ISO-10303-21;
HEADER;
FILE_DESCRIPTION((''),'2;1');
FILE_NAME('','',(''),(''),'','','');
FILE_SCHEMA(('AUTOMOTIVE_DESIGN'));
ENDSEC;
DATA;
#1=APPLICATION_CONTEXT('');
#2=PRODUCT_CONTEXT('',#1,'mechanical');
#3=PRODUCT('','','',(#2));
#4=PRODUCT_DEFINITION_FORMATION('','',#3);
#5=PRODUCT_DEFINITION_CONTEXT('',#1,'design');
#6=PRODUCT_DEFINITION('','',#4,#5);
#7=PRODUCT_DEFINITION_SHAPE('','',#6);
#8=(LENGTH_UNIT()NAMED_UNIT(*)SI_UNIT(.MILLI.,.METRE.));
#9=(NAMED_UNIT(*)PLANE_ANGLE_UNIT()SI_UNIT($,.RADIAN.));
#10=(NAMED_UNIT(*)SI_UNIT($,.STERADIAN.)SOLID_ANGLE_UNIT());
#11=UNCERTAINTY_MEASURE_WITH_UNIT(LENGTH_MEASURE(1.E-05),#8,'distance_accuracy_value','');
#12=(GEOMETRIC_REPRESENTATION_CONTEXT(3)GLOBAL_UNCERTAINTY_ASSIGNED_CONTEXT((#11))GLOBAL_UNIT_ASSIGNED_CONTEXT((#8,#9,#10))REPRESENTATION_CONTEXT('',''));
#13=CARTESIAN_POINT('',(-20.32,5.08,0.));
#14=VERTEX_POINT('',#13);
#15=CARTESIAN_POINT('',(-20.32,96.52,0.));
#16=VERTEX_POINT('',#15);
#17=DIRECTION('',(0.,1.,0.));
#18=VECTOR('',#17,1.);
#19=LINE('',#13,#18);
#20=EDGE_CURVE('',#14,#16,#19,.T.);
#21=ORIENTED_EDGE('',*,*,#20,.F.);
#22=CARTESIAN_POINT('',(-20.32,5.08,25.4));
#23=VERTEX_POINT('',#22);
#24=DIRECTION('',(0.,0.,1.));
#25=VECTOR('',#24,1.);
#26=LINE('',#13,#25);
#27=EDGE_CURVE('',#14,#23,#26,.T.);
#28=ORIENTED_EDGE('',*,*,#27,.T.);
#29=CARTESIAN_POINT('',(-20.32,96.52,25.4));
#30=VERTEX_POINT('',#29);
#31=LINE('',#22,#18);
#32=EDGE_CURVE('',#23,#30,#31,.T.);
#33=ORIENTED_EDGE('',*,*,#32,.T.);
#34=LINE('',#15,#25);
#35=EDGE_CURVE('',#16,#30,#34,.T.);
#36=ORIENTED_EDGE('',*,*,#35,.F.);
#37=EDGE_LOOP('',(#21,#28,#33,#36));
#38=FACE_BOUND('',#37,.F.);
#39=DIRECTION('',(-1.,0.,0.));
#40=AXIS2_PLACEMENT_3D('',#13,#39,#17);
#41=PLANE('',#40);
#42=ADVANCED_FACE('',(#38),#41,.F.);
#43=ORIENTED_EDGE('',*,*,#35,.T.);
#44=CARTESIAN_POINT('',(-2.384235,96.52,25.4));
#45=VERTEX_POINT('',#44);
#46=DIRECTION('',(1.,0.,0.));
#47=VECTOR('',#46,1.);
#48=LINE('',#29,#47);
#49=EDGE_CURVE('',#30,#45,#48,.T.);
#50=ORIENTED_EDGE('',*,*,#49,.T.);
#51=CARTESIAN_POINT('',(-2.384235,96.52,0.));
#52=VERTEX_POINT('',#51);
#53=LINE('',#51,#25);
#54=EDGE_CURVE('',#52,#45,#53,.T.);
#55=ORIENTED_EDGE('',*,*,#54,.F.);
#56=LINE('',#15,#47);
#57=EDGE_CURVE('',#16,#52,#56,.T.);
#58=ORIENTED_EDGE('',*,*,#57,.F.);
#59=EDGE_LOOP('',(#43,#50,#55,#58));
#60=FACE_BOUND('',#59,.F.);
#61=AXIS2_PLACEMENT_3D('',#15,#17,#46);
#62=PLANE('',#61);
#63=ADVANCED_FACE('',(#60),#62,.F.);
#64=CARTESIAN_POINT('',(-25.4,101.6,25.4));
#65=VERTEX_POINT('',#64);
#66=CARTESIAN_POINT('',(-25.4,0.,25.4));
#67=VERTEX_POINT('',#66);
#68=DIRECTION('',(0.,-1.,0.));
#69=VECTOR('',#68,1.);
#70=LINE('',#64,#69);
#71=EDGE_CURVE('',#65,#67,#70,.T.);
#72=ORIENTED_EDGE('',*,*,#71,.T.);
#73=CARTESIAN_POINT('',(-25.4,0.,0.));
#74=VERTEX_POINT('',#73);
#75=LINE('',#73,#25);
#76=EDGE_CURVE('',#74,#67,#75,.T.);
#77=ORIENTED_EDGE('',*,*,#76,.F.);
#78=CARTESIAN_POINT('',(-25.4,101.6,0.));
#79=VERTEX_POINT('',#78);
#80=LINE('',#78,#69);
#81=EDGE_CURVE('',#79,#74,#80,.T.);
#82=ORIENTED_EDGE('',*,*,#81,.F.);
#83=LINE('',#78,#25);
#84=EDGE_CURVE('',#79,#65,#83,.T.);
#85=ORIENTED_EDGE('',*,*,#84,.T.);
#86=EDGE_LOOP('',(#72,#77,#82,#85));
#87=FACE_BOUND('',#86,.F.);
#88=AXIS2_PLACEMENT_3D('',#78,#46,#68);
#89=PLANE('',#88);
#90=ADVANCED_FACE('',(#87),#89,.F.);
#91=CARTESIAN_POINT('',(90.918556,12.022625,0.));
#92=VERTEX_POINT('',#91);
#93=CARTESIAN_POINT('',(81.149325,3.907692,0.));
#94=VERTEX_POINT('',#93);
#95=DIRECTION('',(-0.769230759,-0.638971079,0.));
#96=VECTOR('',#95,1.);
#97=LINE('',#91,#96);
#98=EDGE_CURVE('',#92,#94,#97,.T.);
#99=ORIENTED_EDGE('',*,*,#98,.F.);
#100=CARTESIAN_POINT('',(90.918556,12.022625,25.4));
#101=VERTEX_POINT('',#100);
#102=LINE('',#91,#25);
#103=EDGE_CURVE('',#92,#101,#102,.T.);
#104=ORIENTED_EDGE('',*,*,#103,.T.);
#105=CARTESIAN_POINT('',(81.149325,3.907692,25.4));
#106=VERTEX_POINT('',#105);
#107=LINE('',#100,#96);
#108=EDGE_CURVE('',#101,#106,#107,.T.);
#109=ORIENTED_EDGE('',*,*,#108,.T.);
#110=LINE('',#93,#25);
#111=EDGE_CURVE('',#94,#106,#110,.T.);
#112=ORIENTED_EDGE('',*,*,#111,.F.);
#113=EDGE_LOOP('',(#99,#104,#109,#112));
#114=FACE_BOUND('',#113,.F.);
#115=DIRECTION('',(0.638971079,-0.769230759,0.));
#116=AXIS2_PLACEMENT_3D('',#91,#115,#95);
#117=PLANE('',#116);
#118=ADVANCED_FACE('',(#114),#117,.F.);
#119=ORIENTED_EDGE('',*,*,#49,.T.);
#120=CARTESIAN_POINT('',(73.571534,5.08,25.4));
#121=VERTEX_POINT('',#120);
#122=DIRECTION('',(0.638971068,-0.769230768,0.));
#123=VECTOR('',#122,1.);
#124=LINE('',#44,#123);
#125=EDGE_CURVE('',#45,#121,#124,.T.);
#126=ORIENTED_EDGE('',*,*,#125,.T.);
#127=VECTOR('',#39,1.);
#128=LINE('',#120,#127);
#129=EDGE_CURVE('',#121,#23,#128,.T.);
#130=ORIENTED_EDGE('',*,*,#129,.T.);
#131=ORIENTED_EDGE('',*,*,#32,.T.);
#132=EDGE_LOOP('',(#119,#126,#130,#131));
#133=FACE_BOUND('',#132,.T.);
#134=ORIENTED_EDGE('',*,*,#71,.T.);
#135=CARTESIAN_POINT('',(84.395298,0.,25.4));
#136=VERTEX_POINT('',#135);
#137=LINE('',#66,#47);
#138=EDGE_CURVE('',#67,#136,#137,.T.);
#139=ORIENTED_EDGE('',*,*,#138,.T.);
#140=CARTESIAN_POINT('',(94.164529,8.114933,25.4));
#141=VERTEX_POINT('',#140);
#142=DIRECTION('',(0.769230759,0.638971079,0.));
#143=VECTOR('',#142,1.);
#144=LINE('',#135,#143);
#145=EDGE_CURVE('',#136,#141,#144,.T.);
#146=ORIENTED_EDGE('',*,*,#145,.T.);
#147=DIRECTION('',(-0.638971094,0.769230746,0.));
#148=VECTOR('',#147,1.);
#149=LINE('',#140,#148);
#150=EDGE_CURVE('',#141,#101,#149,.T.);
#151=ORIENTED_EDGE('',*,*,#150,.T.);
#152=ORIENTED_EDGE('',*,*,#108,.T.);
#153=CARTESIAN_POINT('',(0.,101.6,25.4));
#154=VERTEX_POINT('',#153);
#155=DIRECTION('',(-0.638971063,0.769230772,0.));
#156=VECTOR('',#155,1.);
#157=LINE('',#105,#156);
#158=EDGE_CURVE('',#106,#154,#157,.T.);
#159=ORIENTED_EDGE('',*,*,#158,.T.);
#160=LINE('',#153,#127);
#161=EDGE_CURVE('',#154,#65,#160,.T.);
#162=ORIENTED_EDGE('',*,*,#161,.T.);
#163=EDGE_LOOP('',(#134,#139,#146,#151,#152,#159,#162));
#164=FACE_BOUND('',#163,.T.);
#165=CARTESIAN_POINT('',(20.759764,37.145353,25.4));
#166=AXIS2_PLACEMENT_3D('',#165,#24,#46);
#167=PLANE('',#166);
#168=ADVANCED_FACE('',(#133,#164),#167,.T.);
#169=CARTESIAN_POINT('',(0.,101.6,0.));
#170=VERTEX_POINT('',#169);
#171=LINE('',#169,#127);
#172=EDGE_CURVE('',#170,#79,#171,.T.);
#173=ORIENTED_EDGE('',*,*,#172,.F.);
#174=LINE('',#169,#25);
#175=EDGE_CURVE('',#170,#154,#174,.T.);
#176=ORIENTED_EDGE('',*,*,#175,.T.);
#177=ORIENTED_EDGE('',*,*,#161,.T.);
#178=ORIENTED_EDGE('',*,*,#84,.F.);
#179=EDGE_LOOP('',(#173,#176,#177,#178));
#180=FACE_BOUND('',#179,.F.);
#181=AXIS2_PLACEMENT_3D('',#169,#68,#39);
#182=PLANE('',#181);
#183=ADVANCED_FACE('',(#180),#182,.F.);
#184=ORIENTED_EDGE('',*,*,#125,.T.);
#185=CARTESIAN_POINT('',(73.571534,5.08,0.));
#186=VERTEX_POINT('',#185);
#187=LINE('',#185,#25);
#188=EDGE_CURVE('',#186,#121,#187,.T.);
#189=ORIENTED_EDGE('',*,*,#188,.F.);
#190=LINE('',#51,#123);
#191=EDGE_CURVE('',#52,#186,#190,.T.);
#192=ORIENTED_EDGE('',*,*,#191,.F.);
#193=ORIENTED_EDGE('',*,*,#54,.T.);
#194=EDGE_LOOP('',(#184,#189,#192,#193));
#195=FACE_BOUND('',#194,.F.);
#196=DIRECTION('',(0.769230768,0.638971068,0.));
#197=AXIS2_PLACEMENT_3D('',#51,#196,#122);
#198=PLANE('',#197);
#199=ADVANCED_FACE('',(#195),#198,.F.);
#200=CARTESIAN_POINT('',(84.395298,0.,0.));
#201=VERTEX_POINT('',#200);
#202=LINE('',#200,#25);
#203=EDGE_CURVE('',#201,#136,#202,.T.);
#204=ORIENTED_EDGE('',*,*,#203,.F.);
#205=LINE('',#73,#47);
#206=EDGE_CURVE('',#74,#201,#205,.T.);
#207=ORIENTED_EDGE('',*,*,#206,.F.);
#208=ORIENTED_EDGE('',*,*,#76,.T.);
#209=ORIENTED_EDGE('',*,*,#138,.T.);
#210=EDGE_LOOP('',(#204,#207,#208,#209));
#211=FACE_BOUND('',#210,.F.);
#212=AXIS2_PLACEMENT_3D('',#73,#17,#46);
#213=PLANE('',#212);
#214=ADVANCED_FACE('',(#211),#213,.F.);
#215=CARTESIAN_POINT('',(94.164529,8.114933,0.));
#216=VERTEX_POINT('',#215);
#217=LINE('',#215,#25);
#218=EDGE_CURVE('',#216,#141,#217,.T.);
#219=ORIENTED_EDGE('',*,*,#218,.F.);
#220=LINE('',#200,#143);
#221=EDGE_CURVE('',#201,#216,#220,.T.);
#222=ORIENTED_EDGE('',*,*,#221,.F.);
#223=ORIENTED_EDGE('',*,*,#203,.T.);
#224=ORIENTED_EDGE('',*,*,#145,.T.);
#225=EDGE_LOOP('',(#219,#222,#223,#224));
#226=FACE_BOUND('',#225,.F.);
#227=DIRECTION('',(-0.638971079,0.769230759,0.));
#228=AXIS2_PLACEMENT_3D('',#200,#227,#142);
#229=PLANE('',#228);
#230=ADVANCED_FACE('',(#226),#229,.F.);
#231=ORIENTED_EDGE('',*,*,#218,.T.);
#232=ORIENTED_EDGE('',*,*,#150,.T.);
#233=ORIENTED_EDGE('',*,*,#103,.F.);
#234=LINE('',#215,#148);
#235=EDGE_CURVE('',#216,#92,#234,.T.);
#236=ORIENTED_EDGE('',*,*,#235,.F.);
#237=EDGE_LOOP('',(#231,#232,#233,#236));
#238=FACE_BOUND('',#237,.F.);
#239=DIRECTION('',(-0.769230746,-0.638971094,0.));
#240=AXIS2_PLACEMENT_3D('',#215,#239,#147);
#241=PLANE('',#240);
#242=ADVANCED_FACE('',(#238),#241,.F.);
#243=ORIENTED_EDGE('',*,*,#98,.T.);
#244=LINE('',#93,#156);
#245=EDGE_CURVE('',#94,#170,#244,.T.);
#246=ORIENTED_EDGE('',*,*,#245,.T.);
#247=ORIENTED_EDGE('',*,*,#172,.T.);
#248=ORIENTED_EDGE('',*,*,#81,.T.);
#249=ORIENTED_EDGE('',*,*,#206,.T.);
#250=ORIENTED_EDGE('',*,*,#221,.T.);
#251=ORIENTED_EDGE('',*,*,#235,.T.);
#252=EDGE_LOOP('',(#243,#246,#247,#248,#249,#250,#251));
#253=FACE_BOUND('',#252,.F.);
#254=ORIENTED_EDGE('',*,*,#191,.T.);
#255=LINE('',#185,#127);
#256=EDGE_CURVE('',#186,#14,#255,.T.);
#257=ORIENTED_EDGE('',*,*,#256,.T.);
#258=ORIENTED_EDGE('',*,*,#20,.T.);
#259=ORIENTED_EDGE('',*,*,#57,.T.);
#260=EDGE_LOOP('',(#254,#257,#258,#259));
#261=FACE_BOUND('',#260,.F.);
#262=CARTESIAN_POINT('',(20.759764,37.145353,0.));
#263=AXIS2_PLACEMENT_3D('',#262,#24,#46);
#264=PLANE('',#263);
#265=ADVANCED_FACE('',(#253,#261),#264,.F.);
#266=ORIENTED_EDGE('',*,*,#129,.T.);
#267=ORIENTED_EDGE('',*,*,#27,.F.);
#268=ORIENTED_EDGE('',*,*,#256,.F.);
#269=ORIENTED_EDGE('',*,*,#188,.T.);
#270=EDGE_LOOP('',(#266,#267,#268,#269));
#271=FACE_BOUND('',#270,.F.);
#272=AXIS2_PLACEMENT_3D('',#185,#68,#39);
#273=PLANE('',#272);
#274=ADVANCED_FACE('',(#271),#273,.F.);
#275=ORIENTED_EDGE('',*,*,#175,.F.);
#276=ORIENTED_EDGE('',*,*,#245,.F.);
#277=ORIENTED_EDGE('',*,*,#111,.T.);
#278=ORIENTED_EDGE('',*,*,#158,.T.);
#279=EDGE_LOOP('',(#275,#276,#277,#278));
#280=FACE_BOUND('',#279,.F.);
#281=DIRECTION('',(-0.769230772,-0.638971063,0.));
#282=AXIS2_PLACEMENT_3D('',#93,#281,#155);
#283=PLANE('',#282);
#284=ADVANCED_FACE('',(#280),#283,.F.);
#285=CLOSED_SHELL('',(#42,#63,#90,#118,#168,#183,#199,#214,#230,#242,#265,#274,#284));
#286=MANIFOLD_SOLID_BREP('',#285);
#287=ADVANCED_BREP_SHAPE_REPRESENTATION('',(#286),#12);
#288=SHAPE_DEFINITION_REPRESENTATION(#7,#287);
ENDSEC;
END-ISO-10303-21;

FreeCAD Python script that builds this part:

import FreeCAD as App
import Part
import Sketcher

V = App.Vector
Q = App.Units.Quantity


def add_polygon(sketch, points):
    """Adds a closed chain of lines whose ends are joined by coincident constraints."""
    first, n = sketch.GeometryCount, len(points)
    for a, b in zip(points, points[1:] + points[:1]):
        sketch.addGeometry(Part.LineSegment(App.Vector(*a, 0), App.Vector(*b, 0)), False)
    for i in range(n):
        sketch.addConstraint(Sketcher.Constraint("Coincident", first + i, 2, first + (i + 1) % n, 1))

doc = App.newDocument("Part")
body = doc.addObject("PartDesign::Body", "Body")

sketch1 = doc.addObject("Sketcher::SketchObject", "Sketch")
body.addObject(sketch1)
sketch1.AttachmentSupport = (doc.XY_Plane, [""])
sketch1.MapMode = "FlatFace"
add_polygon(sketch1, [(-25.4, 0), (84.395298, 0), (94.164529, 8.114933), (90.918556, 12.022625), (81.149325, 3.907692), (0, 101.6), (-25.4, 101.6)])
add_polygon(sketch1, [(-20.32, 5.08), (-20.32, 96.52), (-2.384235, 96.52), (73.571534, 5.08)])
sketch1.addConstraint(Sketcher.Constraint("Horizontal", 0))
sketch1.addConstraint(Sketcher.Constraint("Horizontal", 5))
sketch1.addConstraint(Sketcher.Constraint("Vertical", 6))
sketch1.addConstraint(Sketcher.Constraint("Vertical", 7))
sketch1.addConstraint(Sketcher.Constraint("Horizontal", 8))
sketch1.addConstraint(Sketcher.Constraint("Horizontal", 10))
sketch1.addConstraint(Sketcher.Constraint("PointOnObject", 0, 2, -1))
sketch1.addConstraint(Sketcher.Constraint("PointOnObject", 4, 2, -2))
sketch1.addConstraint(Sketcher.Constraint("Perpendicular", 1, 2))
sketch1.addConstraint(Sketcher.Constraint("Perpendicular", 2, 3))
sketch1.addConstraint(Sketcher.Constraint("Perpendicular", 3, 4))
sketch1.addConstraint(Sketcher.Constraint("Parallel", 4, 9))
sketch1.addConstraint(Sketcher.Constraint("Equal", 1, 3))
sketch1.addConstraint(Sketcher.Constraint("DistanceX", 5, 2, 5, 1, Q("1 in")))
sketch1.addConstraint(Sketcher.Constraint("DistanceY", 6, 2, 6, 1, Q("4 in")))
sketch1.addConstraint(Sketcher.Constraint("Distance", 4, Q("5 in")))
sketch1.addConstraint(Sketcher.Constraint("DistanceY", 7, 1, 7, 2, Q("3.6 in")))
sketch1.addConstraint(Sketcher.Constraint("Distance", 1, Q("0.5 in")))
sketch1.addConstraint(Sketcher.Constraint("Distance", 2, Q("0.2 in")))
sketch1.addConstraint(Sketcher.Constraint("DistanceX", 7, 2, -1, 1, Q("0.8 in")))
sketch1.addConstraint(Sketcher.Constraint("DistanceY", -1, 1, 7, 2, Q("3.8 in")))
sketch1.addConstraint(Sketcher.Constraint("DistanceX", 8, 1, 8, 2, 17.935765))
pad1 = doc.addObject("PartDesign::Pad", "Pad")
body.addObject(pad1)
pad1.Profile = sketch1
pad1.Length = Q("1 in")

doc.recompute()
